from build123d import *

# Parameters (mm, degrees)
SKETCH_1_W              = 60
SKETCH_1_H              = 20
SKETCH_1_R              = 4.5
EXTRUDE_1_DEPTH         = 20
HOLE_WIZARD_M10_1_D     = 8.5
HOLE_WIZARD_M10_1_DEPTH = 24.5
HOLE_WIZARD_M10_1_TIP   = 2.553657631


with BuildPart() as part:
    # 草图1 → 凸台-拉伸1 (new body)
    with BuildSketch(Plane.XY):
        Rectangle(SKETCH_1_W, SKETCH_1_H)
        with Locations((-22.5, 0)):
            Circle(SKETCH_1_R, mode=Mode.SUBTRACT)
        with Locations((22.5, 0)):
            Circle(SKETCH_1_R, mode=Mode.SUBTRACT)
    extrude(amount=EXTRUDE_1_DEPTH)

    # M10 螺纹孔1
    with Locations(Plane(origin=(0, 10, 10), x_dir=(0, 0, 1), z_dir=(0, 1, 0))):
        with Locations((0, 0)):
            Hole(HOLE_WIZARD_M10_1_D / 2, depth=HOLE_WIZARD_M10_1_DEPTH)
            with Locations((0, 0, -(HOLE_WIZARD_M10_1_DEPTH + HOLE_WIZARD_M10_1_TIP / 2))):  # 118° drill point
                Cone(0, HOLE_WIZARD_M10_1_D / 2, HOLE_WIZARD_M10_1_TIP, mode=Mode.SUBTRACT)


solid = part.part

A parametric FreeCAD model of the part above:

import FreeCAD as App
import Part
import Sketcher
from FreeCAD import Vector
Q = App.Units.Quantity


def add_polygon(sketch, points):
    """Adds a closed chain of lines whose ends are joined by coincident constraints."""
    first, n = sketch.GeometryCount, len(points)
    for a, b in zip(points, points[1:] + points[:1]):
        sketch.addGeometry(Part.LineSegment(App.Vector(*a, 0), App.Vector(*b, 0)), False)
    for i in range(n):
        sketch.addConstraint(Sketcher.Constraint("Coincident", first + i, 2, first + (i + 1) % n, 1))

doc = App.newDocument("Part")
body = doc.addObject("PartDesign::Body", "Body")

# Sketch on XY plane
sketch1 = body.newObject("Sketcher::SketchObject", "Sketch")
sketch1.AttachmentSupport = (doc.getObject("XY_Plane"), [""])
sketch1.MapMode = "FlatFace"
add_polygon(sketch1, [(-30, 10), (-30, -10), (30, -10), (30, 10)])  # lines 0-3
sketch1.addGeometry(Part.Circle(Vector(-22.5, 0, 0), Vector(0, 0, 1), 4.5), False)  # 4
sketch1.addGeometry(Part.Circle(Vector(22.5, 0, 0), Vector(0, 0, 1), 4.5), False)  # 5
sketch1.addConstraint(Sketcher.Constraint("Vertical", 0))
sketch1.addConstraint(Sketcher.Constraint("Horizontal", 1))
sketch1.addConstraint(Sketcher.Constraint("Vertical", 2))
sketch1.addConstraint(Sketcher.Constraint("Horizontal", 3))
sketch1.addConstraint(Sketcher.Constraint("Equal", 4, 5))
sketch1.addConstraint(Sketcher.Constraint("Symmetric", 4, 3, 5, 3, -1, 1))
sketch1.addConstraint(Sketcher.Constraint("Symmetric", 0, 2, 2, 2, -1, 1))
sketch1.addConstraint(Sketcher.Constraint("PointOnObject", 4, 3, -1))
sketch1.addConstraint(Sketcher.Constraint("Diameter", 4, Q("9 mm")))
sketch1.addConstraint(Sketcher.Constraint("DistanceX", 1, 1, 1, 2, Q("60 mm")))
sketch1.addConstraint(Sketcher.Constraint("DistanceY", 0, 2, 0, 1, Q("20 mm")))
sketch1.addConstraint(Sketcher.Constraint("DistanceX", 4, 3, 5, 3, Q("45 mm")))
pad1 = body.newObject("PartDesign::Pad", "Pad")
pad1.Profile = sketch1
pad1.Length = 20

# Sketch on XZ plane
sketch2 = body.newObject("Sketcher::SketchObject", "Sketch001")
sketch2.AttachmentSupport = (doc.getObject("XZ_Plane"), [""])
sketch2.MapMode = "FlatFace"
sketch2.AttachmentOffset = App.Placement(Vector(0, 0, -10), App.Rotation())
sketch2.addGeometry(Part.Circle(Vector(0, 10, 0), Vector(0, 0, 1), 4.2), False)
sketch2.addConstraint(Sketcher.Constraint("PointOnObject", 0, 3, -2))
sketch2.addConstraint(Sketcher.Constraint("Diameter", 0, Q("8.5 mm")))
sketch2.addConstraint(Sketcher.Constraint("DistanceY", -1, 1, 0, 3, Q("10 mm")))
doc.recompute()
hole = body.newObject("PartDesign::Hole", "Hole")
hole.Profile = sketch2
hole.ThreadType = "None"
hole.Diameter = 8.5
hole.DepthType = "Dimension"
hole.Depth = 24.5
hole.DrillPoint = "Angled"
hole.DrillPointAngle = 118
hole.Reversed = True

doc.recompute()
